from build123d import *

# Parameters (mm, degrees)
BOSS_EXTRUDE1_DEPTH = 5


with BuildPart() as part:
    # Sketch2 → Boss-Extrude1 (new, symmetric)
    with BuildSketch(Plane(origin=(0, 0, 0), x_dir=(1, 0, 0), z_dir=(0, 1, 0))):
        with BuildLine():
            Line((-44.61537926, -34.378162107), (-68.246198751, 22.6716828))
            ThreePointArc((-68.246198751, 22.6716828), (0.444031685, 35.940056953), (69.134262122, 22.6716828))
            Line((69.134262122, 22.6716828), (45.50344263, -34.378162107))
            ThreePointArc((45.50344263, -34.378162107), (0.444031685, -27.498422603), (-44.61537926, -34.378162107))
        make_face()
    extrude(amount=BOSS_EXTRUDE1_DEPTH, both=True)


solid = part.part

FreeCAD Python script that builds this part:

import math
import FreeCAD as App
import Part
import Sketcher
Q = App.Units.Quantity

doc = App.newDocument("Part")
body = doc.addObject("PartDesign::Body", "Body")

sketch1 = body.newObject("Sketcher::SketchObject", "Sketch")
sketch1.AttachmentSupport = (doc.getObject("XZ_Plane"), [""])
sketch1.MapMode = "FlatFace"
sketch1.addGeometry([
    Part.LineSegment(App.Vector(-68.246199, -22.671683, 0), App.Vector(-44.615379, 34.378162, 0)),
    Part.ArcOfCircle(Part.Circle(App.Vector(0.444032, 178.498423, 0), App.Vector(0, 0, 1), 151), math.radians(-107.361931), math.radians(-72.638069)),
    Part.LineSegment(App.Vector(45.503443, 34.378162, 0), App.Vector(69.134262, -22.671683, 0)),
    Part.ArcOfCircle(Part.Circle(App.Vector(0.444032, 148.498423, 0), App.Vector(0, 0, 1), 184.43848), math.radians(-111.865496), math.radians(-68.134504)),
], False)
sketch1.addConstraint([
    Sketcher.Constraint("Coincident", 0, 2, 1, 1),
    Sketcher.Constraint("Coincident", 1, 2, 2, 1),
    Sketcher.Constraint("Coincident", 2, 2, 3, 2),
    Sketcher.Constraint("Coincident", 3, 1, 0, 1),
    Sketcher.Constraint("Horizontal", 0, 2, 1, 2),
    Sketcher.Constraint("Horizontal", 2, 2, 3, 1),
    Sketcher.Constraint("Vertical", 1, 3, 3, 3),
    Sketcher.Constraint("Radius", 1, 151.0),
    Sketcher.Constraint("Angle", 0, Q("67.5 deg")),
    Sketcher.Constraint("DistanceY", 3, 3, 1, 3, 30.0),
    Sketcher.Constraint("Radius", 3, 184.43848),
    Sketcher.Constraint("DistanceX", 3, 1, -1, 1, 68.246199),
    Sketcher.Constraint("DistanceX", -1, 1, 1, 3, 0.444032),
    Sketcher.Constraint("DistanceY", -1, 1, 1, 3, 178.498423),
])
pad1 = body.newObject("PartDesign::Pad", "Pad")
pad1.Profile = sketch1
pad1.Length = 10
pad1.Midplane = True

doc.recompute()
